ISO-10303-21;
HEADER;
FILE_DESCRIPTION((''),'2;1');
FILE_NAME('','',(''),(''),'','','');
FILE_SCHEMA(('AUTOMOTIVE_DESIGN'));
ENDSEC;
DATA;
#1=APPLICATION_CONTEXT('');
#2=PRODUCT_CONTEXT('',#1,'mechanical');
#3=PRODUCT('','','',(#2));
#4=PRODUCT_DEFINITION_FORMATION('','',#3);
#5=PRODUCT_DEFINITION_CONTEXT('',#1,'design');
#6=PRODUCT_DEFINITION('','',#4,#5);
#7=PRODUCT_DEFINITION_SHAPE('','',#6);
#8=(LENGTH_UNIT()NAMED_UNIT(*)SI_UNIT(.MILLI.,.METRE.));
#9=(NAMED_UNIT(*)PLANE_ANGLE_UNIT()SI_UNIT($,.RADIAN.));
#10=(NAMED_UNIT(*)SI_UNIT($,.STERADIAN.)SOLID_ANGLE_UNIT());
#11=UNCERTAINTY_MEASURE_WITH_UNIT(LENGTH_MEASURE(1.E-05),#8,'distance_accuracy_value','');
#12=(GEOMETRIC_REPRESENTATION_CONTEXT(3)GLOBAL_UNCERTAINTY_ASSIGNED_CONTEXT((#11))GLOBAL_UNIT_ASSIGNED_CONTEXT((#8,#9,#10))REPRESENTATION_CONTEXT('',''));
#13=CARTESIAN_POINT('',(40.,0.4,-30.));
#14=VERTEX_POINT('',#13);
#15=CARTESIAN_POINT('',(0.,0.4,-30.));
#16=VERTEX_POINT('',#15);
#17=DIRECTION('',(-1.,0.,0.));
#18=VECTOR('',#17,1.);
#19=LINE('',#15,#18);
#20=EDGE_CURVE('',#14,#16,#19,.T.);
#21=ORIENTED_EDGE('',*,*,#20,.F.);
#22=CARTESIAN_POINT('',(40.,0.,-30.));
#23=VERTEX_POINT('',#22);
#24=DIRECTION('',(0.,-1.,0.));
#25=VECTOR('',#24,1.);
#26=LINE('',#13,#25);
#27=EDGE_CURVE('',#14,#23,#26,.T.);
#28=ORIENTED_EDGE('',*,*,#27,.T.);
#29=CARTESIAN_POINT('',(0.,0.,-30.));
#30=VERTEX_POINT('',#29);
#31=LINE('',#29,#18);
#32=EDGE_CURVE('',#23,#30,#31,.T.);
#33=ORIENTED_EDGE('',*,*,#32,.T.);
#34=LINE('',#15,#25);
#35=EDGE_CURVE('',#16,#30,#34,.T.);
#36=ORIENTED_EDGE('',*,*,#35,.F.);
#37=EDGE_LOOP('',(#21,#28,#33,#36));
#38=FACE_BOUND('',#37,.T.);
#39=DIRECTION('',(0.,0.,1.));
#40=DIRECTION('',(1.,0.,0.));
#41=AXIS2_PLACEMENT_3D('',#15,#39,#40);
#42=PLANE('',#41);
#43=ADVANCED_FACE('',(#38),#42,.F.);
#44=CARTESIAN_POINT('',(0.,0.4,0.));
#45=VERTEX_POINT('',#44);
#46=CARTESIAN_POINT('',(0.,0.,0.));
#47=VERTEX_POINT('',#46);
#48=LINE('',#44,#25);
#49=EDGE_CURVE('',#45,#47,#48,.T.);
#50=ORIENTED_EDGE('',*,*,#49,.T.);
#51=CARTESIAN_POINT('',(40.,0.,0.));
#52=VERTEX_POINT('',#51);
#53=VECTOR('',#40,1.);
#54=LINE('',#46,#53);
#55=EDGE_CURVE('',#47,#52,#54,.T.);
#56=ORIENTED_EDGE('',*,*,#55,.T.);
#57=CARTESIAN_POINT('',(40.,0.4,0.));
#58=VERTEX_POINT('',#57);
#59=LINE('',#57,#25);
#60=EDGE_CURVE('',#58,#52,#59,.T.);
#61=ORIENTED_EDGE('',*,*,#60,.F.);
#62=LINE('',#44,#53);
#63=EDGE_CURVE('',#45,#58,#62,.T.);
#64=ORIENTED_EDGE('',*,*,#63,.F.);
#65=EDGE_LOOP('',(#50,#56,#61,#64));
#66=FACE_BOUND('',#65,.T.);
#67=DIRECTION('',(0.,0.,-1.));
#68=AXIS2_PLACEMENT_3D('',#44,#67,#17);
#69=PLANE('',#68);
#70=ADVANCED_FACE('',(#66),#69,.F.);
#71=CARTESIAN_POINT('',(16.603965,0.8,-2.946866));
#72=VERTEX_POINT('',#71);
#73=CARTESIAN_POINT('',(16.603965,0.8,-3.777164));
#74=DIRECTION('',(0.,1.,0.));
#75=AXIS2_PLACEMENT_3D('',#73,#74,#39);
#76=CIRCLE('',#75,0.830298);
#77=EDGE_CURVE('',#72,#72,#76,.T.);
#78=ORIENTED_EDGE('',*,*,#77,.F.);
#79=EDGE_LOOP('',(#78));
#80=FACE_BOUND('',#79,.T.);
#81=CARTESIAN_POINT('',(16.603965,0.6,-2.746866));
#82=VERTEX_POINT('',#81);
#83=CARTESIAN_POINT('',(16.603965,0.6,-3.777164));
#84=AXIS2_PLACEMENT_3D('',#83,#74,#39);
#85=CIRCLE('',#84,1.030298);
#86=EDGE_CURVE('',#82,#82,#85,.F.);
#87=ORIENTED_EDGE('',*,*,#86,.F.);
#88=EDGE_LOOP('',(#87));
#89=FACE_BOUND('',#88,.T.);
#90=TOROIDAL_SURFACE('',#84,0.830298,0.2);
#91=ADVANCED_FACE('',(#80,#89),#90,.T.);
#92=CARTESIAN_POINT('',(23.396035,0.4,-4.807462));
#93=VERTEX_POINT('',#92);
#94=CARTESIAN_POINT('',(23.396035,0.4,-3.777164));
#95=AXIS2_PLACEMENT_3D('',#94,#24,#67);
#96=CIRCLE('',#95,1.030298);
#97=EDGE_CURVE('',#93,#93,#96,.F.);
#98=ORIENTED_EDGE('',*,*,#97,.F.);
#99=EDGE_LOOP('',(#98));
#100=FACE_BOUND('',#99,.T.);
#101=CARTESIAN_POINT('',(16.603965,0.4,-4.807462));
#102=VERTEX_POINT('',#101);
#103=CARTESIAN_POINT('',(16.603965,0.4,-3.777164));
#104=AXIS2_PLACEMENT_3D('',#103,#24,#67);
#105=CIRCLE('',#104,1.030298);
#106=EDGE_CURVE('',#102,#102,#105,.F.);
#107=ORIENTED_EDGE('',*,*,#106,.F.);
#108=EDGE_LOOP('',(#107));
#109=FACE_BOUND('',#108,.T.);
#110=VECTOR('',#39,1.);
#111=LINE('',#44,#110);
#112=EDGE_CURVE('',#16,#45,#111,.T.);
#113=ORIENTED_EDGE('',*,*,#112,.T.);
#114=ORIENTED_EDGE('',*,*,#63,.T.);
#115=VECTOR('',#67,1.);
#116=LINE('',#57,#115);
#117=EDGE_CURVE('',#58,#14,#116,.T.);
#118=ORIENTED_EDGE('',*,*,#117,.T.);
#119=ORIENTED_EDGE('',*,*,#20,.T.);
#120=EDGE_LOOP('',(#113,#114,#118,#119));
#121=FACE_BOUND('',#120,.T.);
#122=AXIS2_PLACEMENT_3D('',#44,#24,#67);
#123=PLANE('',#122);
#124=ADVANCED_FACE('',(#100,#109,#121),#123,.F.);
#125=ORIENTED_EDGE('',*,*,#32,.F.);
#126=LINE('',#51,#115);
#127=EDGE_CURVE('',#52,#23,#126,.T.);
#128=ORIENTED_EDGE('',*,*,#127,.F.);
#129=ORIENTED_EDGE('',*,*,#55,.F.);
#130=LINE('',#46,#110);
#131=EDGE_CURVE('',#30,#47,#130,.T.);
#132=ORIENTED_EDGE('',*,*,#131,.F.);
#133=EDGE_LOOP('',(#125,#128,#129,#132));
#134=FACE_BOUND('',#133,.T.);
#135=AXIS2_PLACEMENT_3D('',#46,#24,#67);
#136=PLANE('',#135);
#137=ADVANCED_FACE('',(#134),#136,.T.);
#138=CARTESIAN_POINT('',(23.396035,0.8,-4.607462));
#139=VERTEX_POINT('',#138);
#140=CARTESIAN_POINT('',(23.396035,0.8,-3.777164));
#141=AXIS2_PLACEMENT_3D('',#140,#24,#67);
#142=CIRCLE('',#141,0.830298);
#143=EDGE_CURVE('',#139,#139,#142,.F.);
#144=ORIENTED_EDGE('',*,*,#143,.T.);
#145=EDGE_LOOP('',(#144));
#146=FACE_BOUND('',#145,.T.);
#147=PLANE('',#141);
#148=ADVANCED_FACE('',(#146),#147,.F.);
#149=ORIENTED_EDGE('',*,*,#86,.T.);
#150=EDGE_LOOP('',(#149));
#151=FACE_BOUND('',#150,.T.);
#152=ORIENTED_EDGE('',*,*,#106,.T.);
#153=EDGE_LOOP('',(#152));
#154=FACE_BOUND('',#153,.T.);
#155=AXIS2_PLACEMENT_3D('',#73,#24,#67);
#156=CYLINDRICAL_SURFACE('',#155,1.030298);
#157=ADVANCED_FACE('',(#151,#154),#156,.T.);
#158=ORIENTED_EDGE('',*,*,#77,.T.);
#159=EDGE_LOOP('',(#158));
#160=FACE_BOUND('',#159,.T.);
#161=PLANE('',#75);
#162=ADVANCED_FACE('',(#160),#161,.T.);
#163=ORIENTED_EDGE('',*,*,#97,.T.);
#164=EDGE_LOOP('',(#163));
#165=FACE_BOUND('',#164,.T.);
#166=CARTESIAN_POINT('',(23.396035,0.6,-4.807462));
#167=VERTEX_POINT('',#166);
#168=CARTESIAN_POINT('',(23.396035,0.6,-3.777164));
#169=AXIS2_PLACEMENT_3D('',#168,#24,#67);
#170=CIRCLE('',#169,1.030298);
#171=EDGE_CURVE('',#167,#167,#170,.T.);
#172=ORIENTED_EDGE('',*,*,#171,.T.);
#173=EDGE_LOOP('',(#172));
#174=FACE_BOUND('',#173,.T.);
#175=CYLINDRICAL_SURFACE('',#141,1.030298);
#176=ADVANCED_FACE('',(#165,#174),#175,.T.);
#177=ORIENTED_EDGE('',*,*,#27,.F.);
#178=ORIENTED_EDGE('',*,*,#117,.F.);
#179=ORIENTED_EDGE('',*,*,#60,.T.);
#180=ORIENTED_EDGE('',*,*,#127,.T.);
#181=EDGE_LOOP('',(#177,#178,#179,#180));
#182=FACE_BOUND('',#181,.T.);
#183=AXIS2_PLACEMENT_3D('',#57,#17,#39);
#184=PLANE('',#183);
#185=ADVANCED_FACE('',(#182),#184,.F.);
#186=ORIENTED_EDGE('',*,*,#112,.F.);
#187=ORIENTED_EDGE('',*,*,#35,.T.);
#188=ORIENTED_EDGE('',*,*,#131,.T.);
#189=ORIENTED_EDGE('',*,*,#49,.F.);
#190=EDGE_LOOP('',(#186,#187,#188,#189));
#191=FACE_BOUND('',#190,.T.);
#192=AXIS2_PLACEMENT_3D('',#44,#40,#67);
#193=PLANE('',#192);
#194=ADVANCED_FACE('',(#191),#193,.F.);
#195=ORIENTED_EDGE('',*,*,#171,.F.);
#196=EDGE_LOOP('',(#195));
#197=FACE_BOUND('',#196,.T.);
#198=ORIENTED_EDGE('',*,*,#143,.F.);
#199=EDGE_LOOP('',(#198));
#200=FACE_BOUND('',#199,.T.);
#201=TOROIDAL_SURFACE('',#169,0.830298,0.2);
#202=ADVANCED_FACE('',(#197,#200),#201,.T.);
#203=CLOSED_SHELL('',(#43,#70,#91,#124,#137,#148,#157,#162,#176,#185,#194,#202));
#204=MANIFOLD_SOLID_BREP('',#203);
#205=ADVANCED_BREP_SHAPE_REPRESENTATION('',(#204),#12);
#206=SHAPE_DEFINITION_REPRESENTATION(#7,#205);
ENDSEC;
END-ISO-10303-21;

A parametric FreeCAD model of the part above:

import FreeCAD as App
import Part
import Sketcher
from FreeCAD import Vector
Q = App.Units.Quantity


def edges_at(feature, points):
    """Names of the edges that pass closest to the given points."""
    edges = feature.Shape.Edges
    near = lambda p: min(range(len(edges)), key=lambda i: edges[i].distToShape(Part.Vertex(*p))[0])
    return sorted({f"Edge{near(p) + 1}" for p in points})

doc = App.newDocument("Part")
params = doc.addObject("Spreadsheet::Sheet", "Params")
for row, (alias, value) in enumerate([
    ("sketch1_width", "40 mm"),
    ("sketch1_height", "30 mm"),
    ("pad1_length", "0.4 mm"),
    ("pad2_length", "0.4 mm"),
    ("fillet_radius", "0.2 mm"),
], start=1):
    params.set(f"A{row}", alias)
    params.set(f"B{row}", "=" + value)
    params.setAlias(f"B{row}", alias)

body = doc.addObject("PartDesign::Body", "Body")

# Sketch on XZ plane
sketch1 = body.newObject("Sketcher::SketchObject", "Sketch")
sketch1.AttachmentSupport = (doc.getObject("XZ_Plane"), [""])
sketch1.MapMode = "FlatFace"
sketch1.addGeometry(Part.LineSegment(Vector(0, -30, 0), Vector(0, 0, 0)), False)
sketch1.addGeometry(Part.LineSegment(Vector(0, 0, 0), Vector(40, 0, 0)), False)
sketch1.addGeometry(Part.LineSegment(Vector(40, 0, 0), Vector(40, -30, 0)), False)
sketch1.addGeometry(Part.LineSegment(Vector(40, -30, 0), Vector(0, -30, 0)), False)
sketch1.addConstraint(Sketcher.Constraint("Coincident", 0, 2, 1, 1))
sketch1.addConstraint(Sketcher.Constraint("Coincident", 1, 2, 2, 1))
sketch1.addConstraint(Sketcher.Constraint("Coincident", 2, 2, 3, 1))
sketch1.addConstraint(Sketcher.Constraint("Coincident", 3, 2, 0, 1))
sketch1.addConstraint(Sketcher.Constraint("Vertical", 0))
sketch1.addConstraint(Sketcher.Constraint("Horizontal", 1))
sketch1.addConstraint(Sketcher.Constraint("Vertical", 2))
sketch1.addConstraint(Sketcher.Constraint("Horizontal", 3))
sketch1.addConstraint(Sketcher.Constraint("Coincident", 0, 2, -1, 1))
sketch1.addConstraint(Sketcher.Constraint("DistanceX", 1, 1, 1, 2, Q("40 mm")))
sketch1.addConstraint(Sketcher.Constraint("DistanceY", 0, 1, 0, 2, Q("30 mm")))
sketch1.setExpression("Constraints[9]", "Params.sketch1_width")
sketch1.setExpression("Constraints[10]", "Params.sketch1_height")
pad1 = body.newObject("PartDesign::Pad", "Pad")
pad1.Profile = sketch1
pad1.setExpression("Length", "Params.pad1_length")
pad1.Reversed = True

# Sketch on XZ plane
sketch2 = body.newObject("Sketcher::SketchObject", "Sketch001")
sketch2.AttachmentSupport = (doc.getObject("XZ_Plane"), [""])
sketch2.MapMode = "FlatFace"
sketch2.AttachmentOffset = App.Placement(Vector(0, 0, -0.4), App.Rotation())
sketch2.addGeometry(Part.Circle(Vector(16.603965, -3.777164, 0), Vector(0, 0, 1), 1.030298), False)
sketch2.addGeometry(Part.Circle(Vector(23.396035, -3.777164, 0), Vector(0, 0, 1), 1.030298), False)
sketch2.addConstraint(Sketcher.Constraint("Equal", 0, 1))
sketch2.addConstraint(Sketcher.Constraint("Horizontal", 0, 3, 1, 3))
sketch2.addConstraint(Sketcher.Constraint("Diameter", 0, Q("2.060596 mm")))
sketch2.addConstraint(Sketcher.Constraint("DistanceX", 0, 3, 1, 3, Q("6.792071 mm")))
sketch2.addConstraint(Sketcher.Constraint("DistanceX", -1, 1, 0, 3, Q("16.603965 mm")))
sketch2.addConstraint(Sketcher.Constraint("DistanceY", 0, 3, -1, 1, Q("3.777164 mm")))
pad2 = body.newObject("PartDesign::Pad", "Pad001")
pad2.Profile = sketch2
pad2.setExpression("Length", "Params.pad2_length")
pad2.Reversed = True
doc.recompute()

fillet = body.newObject("PartDesign::Fillet", "Fillet")
fillet.Base = (pad2, edges_at(pad2, [(16.604, 0.8, -2.747), (23.396, 0.8, -2.747)]))
fillet.setExpression("Radius", "Params.fillet_radius")

doc.recompute()
